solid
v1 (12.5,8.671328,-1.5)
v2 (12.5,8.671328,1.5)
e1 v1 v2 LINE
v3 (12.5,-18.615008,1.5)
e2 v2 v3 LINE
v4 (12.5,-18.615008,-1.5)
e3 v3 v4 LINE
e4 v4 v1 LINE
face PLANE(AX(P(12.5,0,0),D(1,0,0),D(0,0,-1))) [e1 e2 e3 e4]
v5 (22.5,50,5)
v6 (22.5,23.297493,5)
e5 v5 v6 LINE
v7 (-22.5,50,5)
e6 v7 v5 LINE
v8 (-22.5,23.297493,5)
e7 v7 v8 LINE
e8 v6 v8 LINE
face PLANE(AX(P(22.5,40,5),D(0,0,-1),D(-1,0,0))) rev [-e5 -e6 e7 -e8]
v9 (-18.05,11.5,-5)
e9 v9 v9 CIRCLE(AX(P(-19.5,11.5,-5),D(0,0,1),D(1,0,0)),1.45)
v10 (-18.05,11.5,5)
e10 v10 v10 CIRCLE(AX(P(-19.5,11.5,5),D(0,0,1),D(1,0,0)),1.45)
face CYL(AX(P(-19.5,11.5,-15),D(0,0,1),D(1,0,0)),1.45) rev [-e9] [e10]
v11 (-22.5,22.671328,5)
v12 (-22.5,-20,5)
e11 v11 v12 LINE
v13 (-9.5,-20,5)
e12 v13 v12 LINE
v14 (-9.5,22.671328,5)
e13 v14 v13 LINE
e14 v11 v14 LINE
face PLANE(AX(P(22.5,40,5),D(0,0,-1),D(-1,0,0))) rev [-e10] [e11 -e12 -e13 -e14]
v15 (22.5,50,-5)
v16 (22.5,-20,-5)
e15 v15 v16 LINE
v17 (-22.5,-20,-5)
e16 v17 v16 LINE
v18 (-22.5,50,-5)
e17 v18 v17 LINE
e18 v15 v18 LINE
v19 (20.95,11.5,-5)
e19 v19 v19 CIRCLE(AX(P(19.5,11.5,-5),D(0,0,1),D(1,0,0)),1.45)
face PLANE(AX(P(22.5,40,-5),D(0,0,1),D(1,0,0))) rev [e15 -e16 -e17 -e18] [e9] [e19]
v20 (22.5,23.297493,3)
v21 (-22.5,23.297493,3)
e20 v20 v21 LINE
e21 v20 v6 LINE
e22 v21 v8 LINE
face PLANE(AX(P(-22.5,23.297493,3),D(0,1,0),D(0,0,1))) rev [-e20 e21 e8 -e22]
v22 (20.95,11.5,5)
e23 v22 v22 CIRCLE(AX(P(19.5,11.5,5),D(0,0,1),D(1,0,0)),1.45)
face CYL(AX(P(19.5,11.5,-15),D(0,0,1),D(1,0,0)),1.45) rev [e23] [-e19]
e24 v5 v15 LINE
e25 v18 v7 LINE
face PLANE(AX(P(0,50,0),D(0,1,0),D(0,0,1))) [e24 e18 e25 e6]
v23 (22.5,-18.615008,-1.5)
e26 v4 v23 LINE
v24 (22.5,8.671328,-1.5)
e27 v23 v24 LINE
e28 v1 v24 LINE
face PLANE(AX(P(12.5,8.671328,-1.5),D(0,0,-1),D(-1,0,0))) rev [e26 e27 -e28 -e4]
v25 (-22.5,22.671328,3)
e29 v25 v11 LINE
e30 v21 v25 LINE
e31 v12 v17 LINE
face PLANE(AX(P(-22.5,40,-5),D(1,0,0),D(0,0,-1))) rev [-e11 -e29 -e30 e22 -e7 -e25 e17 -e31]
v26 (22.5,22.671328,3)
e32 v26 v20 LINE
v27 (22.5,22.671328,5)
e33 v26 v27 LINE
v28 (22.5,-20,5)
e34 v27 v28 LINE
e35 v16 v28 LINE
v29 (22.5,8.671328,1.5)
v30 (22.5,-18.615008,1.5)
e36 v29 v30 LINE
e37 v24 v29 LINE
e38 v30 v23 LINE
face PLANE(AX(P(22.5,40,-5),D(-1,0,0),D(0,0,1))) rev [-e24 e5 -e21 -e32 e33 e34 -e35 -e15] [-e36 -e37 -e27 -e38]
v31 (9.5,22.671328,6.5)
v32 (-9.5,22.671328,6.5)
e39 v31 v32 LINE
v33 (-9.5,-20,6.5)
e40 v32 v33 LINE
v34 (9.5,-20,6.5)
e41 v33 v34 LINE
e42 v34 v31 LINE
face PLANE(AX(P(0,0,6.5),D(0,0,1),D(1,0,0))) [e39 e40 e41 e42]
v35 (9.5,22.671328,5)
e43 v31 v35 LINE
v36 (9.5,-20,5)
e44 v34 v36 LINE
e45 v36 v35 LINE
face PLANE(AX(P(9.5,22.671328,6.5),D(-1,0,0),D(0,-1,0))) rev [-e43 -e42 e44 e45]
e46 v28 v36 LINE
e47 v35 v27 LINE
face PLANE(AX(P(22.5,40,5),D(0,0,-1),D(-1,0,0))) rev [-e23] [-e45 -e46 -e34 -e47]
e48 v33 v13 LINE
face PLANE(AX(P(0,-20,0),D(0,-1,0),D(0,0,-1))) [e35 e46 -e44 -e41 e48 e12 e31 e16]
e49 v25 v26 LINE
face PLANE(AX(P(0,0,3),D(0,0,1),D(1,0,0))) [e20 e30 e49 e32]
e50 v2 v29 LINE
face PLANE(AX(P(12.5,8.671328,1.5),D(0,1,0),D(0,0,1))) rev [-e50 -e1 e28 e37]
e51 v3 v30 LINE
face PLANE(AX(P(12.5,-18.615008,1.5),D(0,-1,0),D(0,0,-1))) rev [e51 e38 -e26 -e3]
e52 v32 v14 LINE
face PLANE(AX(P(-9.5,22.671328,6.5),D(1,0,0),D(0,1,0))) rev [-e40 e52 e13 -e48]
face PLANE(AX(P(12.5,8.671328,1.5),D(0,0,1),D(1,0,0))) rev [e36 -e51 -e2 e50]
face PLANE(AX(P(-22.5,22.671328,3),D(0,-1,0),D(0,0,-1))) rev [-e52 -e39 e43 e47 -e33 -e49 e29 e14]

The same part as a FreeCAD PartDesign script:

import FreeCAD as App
import Part
import Sketcher

V = App.Vector

doc = App.newDocument("Part")
body = doc.addObject("PartDesign::Body", "Body")

sketch1 = body.newObject("Sketcher::SketchObject", "Sketch")
sketch1.AttachmentSupport = (doc.getObject("XZ_Plane"), [""])
sketch1.MapMode = "FlatFace"
sketch1.addGeometry(Part.LineSegment(V(-22.5, -5, 0), V(-22.5, 5, 0)), False)
sketch1.addGeometry(Part.LineSegment(V(-22.5, 5, 0), V(22.5, 5, 0)), False)
sketch1.addGeometry(Part.LineSegment(V(22.5, 5, 0), V(22.5, -5, 0)), False)
sketch1.addGeometry(Part.LineSegment(V(22.5, -5, 0), V(-22.5, -5, 0)), False)
sketch1.addConstraint(Sketcher.Constraint("Coincident", 0, 2, 1, 1))
sketch1.addConstraint(Sketcher.Constraint("Coincident", 1, 2, 2, 1))
sketch1.addConstraint(Sketcher.Constraint("Coincident", 2, 2, 3, 1))
sketch1.addConstraint(Sketcher.Constraint("Coincident", 3, 2, 0, 1))
sketch1.addConstraint(Sketcher.Constraint("Vertical", 0))
sketch1.addConstraint(Sketcher.Constraint("Horizontal", 1))
sketch1.addConstraint(Sketcher.Constraint("Vertical", 2))
sketch1.addConstraint(Sketcher.Constraint("Horizontal", 3))
sketch1.addConstraint(Sketcher.Constraint("Symmetric", 0, 2, 2, 2, -1, 1))
sketch1.addConstraint(Sketcher.Constraint("DistanceX", 1, 1, 1, 2, 45.0))
sketch1.addConstraint(Sketcher.Constraint("DistanceY", 0, 1, 0, 2, 10.0))
pad1 = body.newObject("PartDesign::Pad", "Pad")
pad1.Profile = sketch1
pad1.Length = 40
pad1.Reversed = True

sketch2 = body.newObject("Sketcher::SketchObject", "Sketch001")
sketch2.AttachmentSupport = (doc.getObject("XZ_Plane"), [""])
sketch2.MapMode = "FlatFace"
sketch2.AttachmentOffset = App.Placement(V(0, 0, -40), App.Rotation())
sketch2.addGeometry(Part.LineSegment(V(-22.5, -5, 0), V(-22.5, 5, 0)), False)
sketch2.addGeometry(Part.LineSegment(V(-22.5, 5, 0), V(22.5, 5, 0)), False)
sketch2.addGeometry(Part.LineSegment(V(22.5, 5, 0), V(22.5, -5, 0)), False)
sketch2.addGeometry(Part.LineSegment(V(22.5, -5, 0), V(-22.5, -5, 0)), False)
sketch2.addConstraint(Sketcher.Constraint("Coincident", 0, 2, 1, 1))
sketch2.addConstraint(Sketcher.Constraint("Coincident", 1, 2, 2, 1))
sketch2.addConstraint(Sketcher.Constraint("Coincident", 2, 2, 3, 1))
sketch2.addConstraint(Sketcher.Constraint("Coincident", 3, 2, 0, 1))
sketch2.addConstraint(Sketcher.Constraint("Vertical", 0))
sketch2.addConstraint(Sketcher.Constraint("Horizontal", 1))
sketch2.addConstraint(Sketcher.Constraint("Vertical", 2))
sketch2.addConstraint(Sketcher.Constraint("Horizontal", 3))
sketch2.addConstraint(Sketcher.Constraint("Symmetric", 0, 2, 2, 2, -1, 1))
sketch2.addConstraint(Sketcher.Constraint("DistanceX", 1, 1, 1, 2, 45.0))
sketch2.addConstraint(Sketcher.Constraint("DistanceY", 0, 1, 0, 2, 10.0))
pad2 = body.newObject("PartDesign::Pad", "Pad001")
pad2.Profile = sketch2
pad2.Length = 10
pad2.Reversed = True

sketch3 = body.newObject("Sketcher::SketchObject", "Sketch002")
sketch3.AttachmentSupport = (doc.getObject("XZ_Plane"), [""])
sketch3.MapMode = "FlatFace"
sketch3.addGeometry(Part.LineSegment(V(-22.5, 5, 0), V(-22.5, -5, 0)), False)
sketch3.addGeometry(Part.LineSegment(V(-22.5, -5, 0), V(22.5, -5, 0)), False)
sketch3.addGeometry(Part.LineSegment(V(22.5, -5, 0), V(22.5, 5, 0)), False)
sketch3.addGeometry(Part.LineSegment(V(22.5, 5, 0), V(-22.5, 5, 0)), False)
sketch3.addConstraint(Sketcher.Constraint("Coincident", 0, 2, 1, 1))
sketch3.addConstraint(Sketcher.Constraint("Coincident", 1, 2, 2, 1))
sketch3.addConstraint(Sketcher.Constraint("Coincident", 2, 2, 3, 1))
sketch3.addConstraint(Sketcher.Constraint("Coincident", 3, 2, 0, 1))
sketch3.addConstraint(Sketcher.Constraint("Vertical", 0))
sketch3.addConstraint(Sketcher.Constraint("Horizontal", 1))
sketch3.addConstraint(Sketcher.Constraint("Vertical", 2))
sketch3.addConstraint(Sketcher.Constraint("Horizontal", 3))
sketch3.addConstraint(Sketcher.Constraint("Symmetric", 0, 2, 2, 2, -1, 1))
sketch3.addConstraint(Sketcher.Constraint("DistanceX", 1, 1, 1, 2, 45.0))
sketch3.addConstraint(Sketcher.Constraint("DistanceY", 0, 2, 0, 1, 10.0))
pad3 = body.newObject("PartDesign::Pad", "Pad002")
pad3.Profile = sketch3
pad3.Length = 20

sketch4 = body.newObject("Sketcher::SketchObject", "Sketch003")
sketch4.AttachmentSupport = (doc.getObject("XY_Plane"), [""])
sketch4.MapMode = "FlatFace"
sketch4.AttachmentOffset = App.Placement(V(0, 0, 5), App.Rotation())
sketch4.addGeometry(Part.Circle(V(19.5, 11.5, 0), V(0, 0, 1), 1.45), False)
sketch4.addGeometry(Part.Circle(V(-19.5, 11.5, 0), V(0, 0, 1), 1.45), False)
sketch4.addConstraint(Sketcher.Constraint("Equal", 0, 1))
sketch4.addConstraint(Sketcher.Constraint("Symmetric", 0, 3, 1, 3, -2))
sketch4.addConstraint(Sketcher.Constraint("Diameter", 0, 2.9))
sketch4.addConstraint(Sketcher.Constraint("DistanceX", 1, 3, 0, 3, 39.0))
sketch4.addConstraint(Sketcher.Constraint("DistanceY", -1, 1, 0, 3, 11.5))
pocket1 = body.newObject("PartDesign::Pocket", "Pocket")
pocket1.Profile = sketch4
pocket1.Length = 20

sketch5 = body.newObject("Sketcher::SketchObject", "Sketch004")
sketch5.AttachmentSupport = (doc.getObject("XY_Plane"), [""])
sketch5.MapMode = "FlatFace"
sketch5.AttachmentOffset = App.Placement(V(0, 0, 5), App.Rotation())
sketch5.addGeometry(Part.LineSegment(V(-22.5, 23.297493, 0), V(-22.5, 22.671328, 0)), False)
sketch5.addGeometry(Part.LineSegment(V(-22.5, 22.671328, 0), V(22.5, 22.671328, 0)), False)
sketch5.addGeometry(Part.LineSegment(V(22.5, 22.671328, 0), V(22.5, 23.297493, 0)), False)
sketch5.addGeometry(Part.LineSegment(V(22.5, 23.297493, 0), V(-22.5, 23.297493, 0)), False)
sketch5.addConstraint(Sketcher.Constraint("Coincident", 0, 2, 1, 1))
sketch5.addConstraint(Sketcher.Constraint("Coincident", 1, 2, 2, 1))
sketch5.addConstraint(Sketcher.Constraint("Coincident", 2, 2, 3, 1))
sketch5.addConstraint(Sketcher.Constraint("Coincident", 3, 2, 0, 1))
sketch5.addConstraint(Sketcher.Constraint("Vertical", 0))
sketch5.addConstraint(Sketcher.Constraint("Horizontal", 1))
sketch5.addConstraint(Sketcher.Constraint("Vertical", 2))
sketch5.addConstraint(Sketcher.Constraint("Horizontal", 3))
sketch5.addConstraint(Sketcher.Constraint("DistanceX", 1, 1, 1, 2, 45.0))
sketch5.addConstraint(Sketcher.Constraint("DistanceX", 0, 2, -1, 1, 22.5))
sketch5.addConstraint(Sketcher.Constraint("DistanceY", 0, 2, 0, 1, 0.626165))
sketch5.addConstraint(Sketcher.Constraint("DistanceY", -1, 1, 0, 2, 22.671328))
pocket2 = body.newObject("PartDesign::Pocket", "Pocket001")
pocket2.Profile = sketch5
pocket2.Length = 2

sketch6 = body.newObject("Sketcher::SketchObject", "Sketch005")
sketch6.AttachmentSupport = (doc.getObject("XY_Plane"), [""])
sketch6.MapMode = "FlatFace"
sketch6.AttachmentOffset = App.Placement(V(0, 0, 5), App.Rotation())
sketch6.addGeometry(Part.LineSegment(V(-9.5, 22.671328, 0), V(-9.5, -20, 0)), False)
sketch6.addGeometry(Part.LineSegment(V(-9.5, -20, 0), V(9.5, -20, 0)), False)
sketch6.addGeometry(Part.LineSegment(V(9.5, -20, 0), V(9.5, 22.671328, 0)), False)
sketch6.addGeometry(Part.LineSegment(V(9.5, 22.671328, 0), V(-9.5, 22.671328, 0)), False)
sketch6.addConstraint(Sketcher.Constraint("Coincident", 0, 2, 1, 1))
sketch6.addConstraint(Sketcher.Constraint("Coincident", 1, 2, 2, 1))
sketch6.addConstraint(Sketcher.Constraint("Coincident", 2, 2, 3, 1))
sketch6.addConstraint(Sketcher.Constraint("Coincident", 3, 2, 0, 1))
sketch6.addConstraint(Sketcher.Constraint("Vertical", 0))
sketch6.addConstraint(Sketcher.Constraint("Horizontal", 1))
sketch6.addConstraint(Sketcher.Constraint("Vertical", 2))
sketch6.addConstraint(Sketcher.Constraint("Horizontal", 3))
sketch6.addConstraint(Sketcher.Constraint("DistanceX", 1, 1, 1, 2, 19.0))
sketch6.addConstraint(Sketcher.Constraint("DistanceY", 0, 2, -1, 1, 20.0))
sketch6.addConstraint(Sketcher.Constraint("DistanceX", 0, 2, -1, 1, 9.5))
sketch6.addConstraint(Sketcher.Constraint("DistanceY", 0, 2, 0, 1, 42.671328))
pad4 = body.newObject("PartDesign::Pad", "Pad003")
pad4.Profile = sketch6
pad4.Length = 1.5

sketch7 = body.newObject("Sketcher::SketchObject", "Sketch006")
sketch7.AttachmentSupport = (doc.getObject("YZ_Plane"), [""])
sketch7.MapMode = "FlatFace"
sketch7.AttachmentOffset = App.Placement(V(0, 0, 22.5), App.Rotation())
sketch7.addGeometry(Part.LineSegment(V(8.671328, 1.5, 0), V(-18.615008, 1.5, 0)), False)
sketch7.addGeometry(Part.LineSegment(V(-18.615008, 1.5, 0), V(-18.615008, -1.5, 0)), False)
sketch7.addGeometry(Part.LineSegment(V(-18.615008, -1.5, 0), V(8.671328, -1.5, 0)), False)
sketch7.addGeometry(Part.LineSegment(V(8.671328, -1.5, 0), V(8.671328, 1.5, 0)), False)
sketch7.addConstraint(Sketcher.Constraint("Coincident", 0, 2, 1, 1))
sketch7.addConstraint(Sketcher.Constraint("Coincident", 1, 2, 2, 1))
sketch7.addConstraint(Sketcher.Constraint("Coincident", 2, 2, 3, 1))
sketch7.addConstraint(Sketcher.Constraint("Coincident", 3, 2, 0, 1))
sketch7.addConstraint(Sketcher.Constraint("Horizontal", 0))
sketch7.addConstraint(Sketcher.Constraint("Vertical", 1))
sketch7.addConstraint(Sketcher.Constraint("Horizontal", 2))
sketch7.addConstraint(Sketcher.Constraint("Vertical", 3))
sketch7.addConstraint(Sketcher.Constraint("DistanceY", 1, 2, 1, 1, 3.0))
sketch7.addConstraint(Sketcher.Constraint("DistanceY", -1, 1, 0, 2, 1.5))
sketch7.addConstraint(Sketcher.Constraint("DistanceX", 0, 2, 0, 1, 27.286336))
sketch7.addConstraint(Sketcher.Constraint("DistanceX", 0, 2, -1, 1, 18.615008))
pocket3 = body.newObject("PartDesign::Pocket", "Pocket002")
pocket3.Profile = sketch7
pocket3.Length = 10

doc.recompute()
